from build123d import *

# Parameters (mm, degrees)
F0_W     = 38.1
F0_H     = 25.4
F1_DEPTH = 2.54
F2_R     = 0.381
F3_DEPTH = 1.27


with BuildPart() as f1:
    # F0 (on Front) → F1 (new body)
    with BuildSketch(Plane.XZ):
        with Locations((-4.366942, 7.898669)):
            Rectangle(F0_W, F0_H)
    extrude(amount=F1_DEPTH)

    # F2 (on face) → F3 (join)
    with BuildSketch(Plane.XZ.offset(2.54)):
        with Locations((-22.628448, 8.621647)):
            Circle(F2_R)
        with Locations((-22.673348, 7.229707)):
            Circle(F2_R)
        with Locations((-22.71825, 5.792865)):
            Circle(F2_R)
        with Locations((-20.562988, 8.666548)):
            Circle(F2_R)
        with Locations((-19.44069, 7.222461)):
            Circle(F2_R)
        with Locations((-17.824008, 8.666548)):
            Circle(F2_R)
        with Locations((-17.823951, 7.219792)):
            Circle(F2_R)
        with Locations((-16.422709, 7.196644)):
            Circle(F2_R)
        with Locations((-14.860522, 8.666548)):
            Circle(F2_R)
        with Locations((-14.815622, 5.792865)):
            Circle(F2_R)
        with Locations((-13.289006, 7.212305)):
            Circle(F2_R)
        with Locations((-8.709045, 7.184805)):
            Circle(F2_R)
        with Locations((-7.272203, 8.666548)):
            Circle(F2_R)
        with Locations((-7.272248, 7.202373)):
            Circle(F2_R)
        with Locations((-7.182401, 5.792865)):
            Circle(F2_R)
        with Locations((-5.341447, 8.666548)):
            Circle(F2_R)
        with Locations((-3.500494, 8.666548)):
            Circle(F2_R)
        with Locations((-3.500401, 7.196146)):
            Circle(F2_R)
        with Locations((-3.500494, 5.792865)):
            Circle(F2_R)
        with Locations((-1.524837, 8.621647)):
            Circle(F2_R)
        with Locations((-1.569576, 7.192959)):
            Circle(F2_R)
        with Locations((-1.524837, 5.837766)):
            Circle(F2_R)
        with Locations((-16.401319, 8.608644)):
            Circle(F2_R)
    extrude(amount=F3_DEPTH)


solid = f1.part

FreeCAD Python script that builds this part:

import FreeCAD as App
import Part
import Sketcher
from FreeCAD import Vector
Q = App.Units.Quantity

doc = App.newDocument("Part")
params = doc.addObject("Spreadsheet::Sheet", "Params")
for row, (alias, value) in enumerate([
    ("sketch1_height", "1 in"),
    ("sketch1_width", "1.5 in"),
    ("pad1_length", "0.1 in"),
    ("sketch2_diameter", "0.03 in"),
    ("pad2_length", "0.05 in"),
], start=1):
    params.set(f"A{row}", alias)
    params.set(f"B{row}", "=" + value)
    params.setAlias(f"B{row}", alias)

body = doc.addObject("PartDesign::Body", "Body")

sketch1 = doc.addObject("Sketcher::SketchObject", "Sketch")
body.addObject(sketch1)
sketch1.AttachmentSupport = (doc.XZ_Plane, [""])
sketch1.MapMode = "FlatFace"
sketch1.addGeometry([
    Part.LineSegment(Vector(-23, 21, 0), Vector(-23, -5, 0)),
    Part.LineSegment(Vector(-23, -5, 0), Vector(15, -5, 0)),
    Part.LineSegment(Vector(15, -5, 0), Vector(15, 21, 0)),
    Part.LineSegment(Vector(15, 21, 0), Vector(-23, 21, 0)),
], False)
sketch1.addConstraint([
    Sketcher.Constraint("Coincident", 0, 2, 1, 1),
    Sketcher.Constraint("Coincident", 1, 2, 2, 1),
    Sketcher.Constraint("Coincident", 2, 2, 3, 1),
    Sketcher.Constraint("Coincident", 3, 2, 0, 1),
    Sketcher.Constraint("Vertical", 0),
    Sketcher.Constraint("Horizontal", 1),
    Sketcher.Constraint("Vertical", 2),
    Sketcher.Constraint("Horizontal", 3),
    Sketcher.Constraint("DistanceY", 0, 2, 0, 1, Q("1 in")),
    Sketcher.Constraint("DistanceX", 1, 1, 1, 2, Q("1.5 in")),
    Sketcher.Constraint("DistanceX", 0, 2, -1, 1, 23.416942),
    Sketcher.Constraint("DistanceY", 0, 2, -1, 1, 4.801331),
])
sketch1.setExpression("Constraints[8]", "Params.sketch1_height")
sketch1.setExpression("Constraints[9]", "Params.sketch1_width")
pad1 = doc.addObject("PartDesign::Pad", "Pad")
body.addObject(pad1)
pad1.Profile = sketch1
pad1.setExpression("Length", "Params.pad1_length")

sketch2 = doc.addObject("Sketcher::SketchObject", "Sketch001")
body.addObject(sketch2)
sketch2.AttachmentSupport = (doc.XZ_Plane, [""])
sketch2.MapMode = "FlatFace"
sketch2.AttachmentOffset = App.Placement(Vector(0, 0, 0.1 * 25.4), App.Rotation())
sketch2.addGeometry([
    Part.Circle(Vector(-22.63, 8.62, 0), Vector(0, 0, 1), 0.38),
    Part.Circle(Vector(-22.67, 7.23, 0), Vector(0, 0, 1), 0.38),
    Part.Circle(Vector(-22.72, 5.79, 0), Vector(0, 0, 1), 0.38),
    Part.Circle(Vector(-20.56, 8.67, 0), Vector(0, 0, 1), 0.38),
    Part.Circle(Vector(-19.44, 7.22, 0), Vector(0, 0, 1), 0.38),
    Part.Circle(Vector(-17.82, 8.67, 0), Vector(0, 0, 1), 0.38),
    Part.Circle(Vector(-17.82, 7.22, 0), Vector(0, 0, 1), 0.38),
    Part.Circle(Vector(-16.42, 7.2, 0), Vector(0, 0, 1), 0.38),
    Part.Circle(Vector(-14.86, 8.67, 0), Vector(0, 0, 1), 0.38),
    Part.Circle(Vector(-14.82, 5.79, 0), Vector(0, 0, 1), 0.38),
    Part.Circle(Vector(-13.29, 7.21, 0), Vector(0, 0, 1), 0.38),
    Part.Circle(Vector(-8.71, 7.18, 0), Vector(0, 0, 1), 0.38),
    Part.Circle(Vector(-7.27, 8.67, 0), Vector(0, 0, 1), 0.38),
    Part.Circle(Vector(-7.27, 7.2, 0), Vector(0, 0, 1), 0.38),
    Part.Circle(Vector(-7.18, 5.79, 0), Vector(0, 0, 1), 0.38),
    Part.Circle(Vector(-5.34, 8.67, 0), Vector(0, 0, 1), 0.38),
    Part.Circle(Vector(-3.5, 8.67, 0), Vector(0, 0, 1), 0.38),
    Part.Circle(Vector(-3.5, 7.2, 0), Vector(0, 0, 1), 0.38),
    Part.Circle(Vector(-3.5, 5.79, 0), Vector(0, 0, 1), 0.38),
    Part.Circle(Vector(-1.52, 8.62, 0), Vector(0, 0, 1), 0.38),
    Part.Circle(Vector(-1.57, 7.19, 0), Vector(0, 0, 1), 0.38),
    Part.Circle(Vector(-1.52, 5.84, 0), Vector(0, 0, 1), 0.38),
    Part.Circle(Vector(-16.4, 8.61, 0), Vector(0, 0, 1), 0.38),
], False)
sketch2.addConstraint([
    Sketcher.Constraint("Equal", 0, 1),
    Sketcher.Constraint("Equal", 1, 2),
    Sketcher.Constraint("Equal", 2, 3),
    Sketcher.Constraint("Equal", 3, 4),
    Sketcher.Constraint("Equal", 4, 5),
    Sketcher.Constraint("Equal", 5, 6),
    Sketcher.Constraint("Equal", 6, 7),
    Sketcher.Constraint("Equal", 7, 8),
    Sketcher.Constraint("Equal", 8, 9),
    Sketcher.Constraint("Equal", 9, 10),
    Sketcher.Constraint("Equal", 10, 11),
    Sketcher.Constraint("Equal", 11, 12),
    Sketcher.Constraint("Equal", 12, 13),
    Sketcher.Constraint("Equal", 13, 14),
    Sketcher.Constraint("Equal", 14, 15),
    Sketcher.Constraint("Equal", 15, 16),
    Sketcher.Constraint("Equal", 16, 17),
    Sketcher.Constraint("Equal", 17, 18),
    Sketcher.Constraint("Equal", 18, 19),
    Sketcher.Constraint("Equal", 19, 20),
    Sketcher.Constraint("Equal", 20, 21),
    Sketcher.Constraint("Equal", 21, 22),
    Sketcher.Constraint("Horizontal", 3, 3, 5, 3),
    Sketcher.Constraint("Horizontal", 5, 3, 8, 3),
    Sketcher.Constraint("Horizontal", 2, 3, 9, 3),
    Sketcher.Constraint("Horizontal", 8, 3, 12, 3),
    Sketcher.Constraint("Horizontal", 9, 3, 14, 3),
    Sketcher.Constraint("Horizontal", 12, 3, 15, 3),
    Sketcher.Constraint("Horizontal", 15, 3, 16, 3),
    Sketcher.Constraint("Horizontal", 14, 3, 18, 3),
    Sketcher.Constraint("Horizontal", 0, 3, 19, 3),
    Sketcher.Constraint("Vertical", 16, 3, 18, 3),
    Sketcher.Constraint("Vertical", 19, 3, 21, 3),
    Sketcher.Constraint("Diameter", 0, Q("0.03 in")),
    Sketcher.Constraint("DistanceX", 14, 3, -1, 1, 7.182401),
    Sketcher.Constraint("DistanceX", 17, 3, -1, 1, 3.500401),
    Sketcher.Constraint("DistanceX", 1, 3, 0, 3, 0.0449),
    Sketcher.Constraint("DistanceY", 0, 3, 3, 3, 0.044901),
    Sketcher.Constraint("DistanceX", 3, 3, 4, 3, 1.122298),
    Sketcher.Constraint("DistanceX", 5, 3, 7, 3, 1.401299),
    Sketcher.Constraint("DistanceX", 8, 3, 9, 3, 0.0449),
    Sketcher.Constraint("DistanceX", 5, 3, 10, 3, 4.535002),
    Sketcher.Constraint("DistanceY", 11, 3, 10, 3, 0.0275),
    Sketcher.Constraint("DistanceX", 13, 3, 15, 3, 1.930801),
    Sketcher.Constraint("DistanceX", 11, 3, 15, 3, 3.367598),
    Sketcher.Constraint("DistanceY", 17, 3, 19, 3, 1.425501),
    Sketcher.Constraint("DistanceY", 18, 3, 21, 3, 0.044901),
    Sketcher.Constraint("DistanceY", 7, 3, 22, 3, 1.412),
    Sketcher.Constraint("DistanceX", 1, 3, -1, 1, 22.673348),
    Sketcher.Constraint("DistanceX", 2, 3, -1, 1, 22.71825),
    Sketcher.Constraint("DistanceX", 3, 3, -1, 1, 20.562988),
    Sketcher.Constraint("DistanceY", -1, 1, 4, 3, 7.222461),
    Sketcher.Constraint("DistanceX", 6, 3, -1, 1, 17.823951),
    Sketcher.Constraint("DistanceX", 7, 3, -1, 1, 16.422709),
    Sketcher.Constraint("DistanceX", 13, 3, -1, 1, 7.272248),
    Sketcher.Constraint("DistanceY", -1, 1, 20, 3, 7.192959),
    Sketcher.Constraint("DistanceX", 22, 3, -1, 1, 16.401319),
    Sketcher.Constraint("DistanceY", 1, 3, 0, 3, 1.39194),
    Sketcher.Constraint("DistanceY", 2, 3, 0, 3, 2.828782),
    Sketcher.Constraint("DistanceY", 6, 3, 4, 3, 0.002669),
    Sketcher.Constraint("DistanceX", 6, 3, 8, 3, 2.963429),
    Sketcher.Constraint("DistanceY", 9, 3, 7, 3, 1.403779),
    Sketcher.Constraint("DistanceY", 9, 3, 10, 3, 1.41944),
    Sketcher.Constraint("DistanceX", 11, 3, 12, 3, 1.436842),
    Sketcher.Constraint("DistanceX", 12, 3, 16, 3, 3.771709),
    Sketcher.Constraint("DistanceX", 15, 3, 19, 3, 3.81661),
    Sketcher.Constraint("DistanceX", 20, 3, 19, 3, 0.044739),
    Sketcher.Constraint("DistanceY", 20, 3, 16, 3, 1.473589),
    Sketcher.Constraint("DistanceY", -1, 1, 13, 3, 7.202373),
])
sketch2.setExpression("Constraints[33]", "Params.sketch2_diameter")
pad2 = doc.addObject("PartDesign::Pad", "Pad001")
body.addObject(pad2)
pad2.Profile = sketch2
pad2.setExpression("Length", "Params.pad2_length")

doc.recompute()
